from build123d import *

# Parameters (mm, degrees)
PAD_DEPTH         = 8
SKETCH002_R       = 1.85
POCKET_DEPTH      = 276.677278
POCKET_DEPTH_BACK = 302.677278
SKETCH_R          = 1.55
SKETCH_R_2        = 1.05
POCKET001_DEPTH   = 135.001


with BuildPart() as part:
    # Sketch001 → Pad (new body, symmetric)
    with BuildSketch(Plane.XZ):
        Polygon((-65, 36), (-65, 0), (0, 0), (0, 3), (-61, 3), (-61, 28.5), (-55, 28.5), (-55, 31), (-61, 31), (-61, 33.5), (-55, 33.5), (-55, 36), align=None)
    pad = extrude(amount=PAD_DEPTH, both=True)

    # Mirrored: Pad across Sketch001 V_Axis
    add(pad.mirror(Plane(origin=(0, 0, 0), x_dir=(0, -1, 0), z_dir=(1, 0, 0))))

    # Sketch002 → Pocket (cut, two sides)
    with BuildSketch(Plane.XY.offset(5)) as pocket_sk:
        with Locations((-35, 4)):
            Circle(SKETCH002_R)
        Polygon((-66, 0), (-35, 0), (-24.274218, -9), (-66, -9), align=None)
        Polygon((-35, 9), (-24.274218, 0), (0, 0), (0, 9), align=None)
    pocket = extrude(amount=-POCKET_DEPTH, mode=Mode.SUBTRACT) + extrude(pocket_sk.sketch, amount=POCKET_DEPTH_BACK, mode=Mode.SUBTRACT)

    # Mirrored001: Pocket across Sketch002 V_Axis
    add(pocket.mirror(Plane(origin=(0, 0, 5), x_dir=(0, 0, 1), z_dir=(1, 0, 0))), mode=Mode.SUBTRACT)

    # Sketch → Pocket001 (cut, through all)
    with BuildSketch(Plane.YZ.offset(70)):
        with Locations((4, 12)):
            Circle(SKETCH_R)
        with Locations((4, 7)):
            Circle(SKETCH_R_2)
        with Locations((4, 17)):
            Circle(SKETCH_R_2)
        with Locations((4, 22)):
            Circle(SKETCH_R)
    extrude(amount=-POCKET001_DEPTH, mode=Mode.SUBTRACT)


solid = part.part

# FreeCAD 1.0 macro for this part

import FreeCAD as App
import Part
import Sketcher

V = App.Vector
Q = App.Units.Quantity


def add_polygon(sketch, points):
    """Adds a closed chain of lines whose ends are joined by coincident constraints."""
    first, n = sketch.GeometryCount, len(points)
    for a, b in zip(points, points[1:] + points[:1]):
        sketch.addGeometry(Part.LineSegment(App.Vector(*a, 0), App.Vector(*b, 0)), False)
    for i in range(n):
        sketch.addConstraint(Sketcher.Constraint("Coincident", first + i, 2, first + (i + 1) % n, 1))

doc = App.newDocument("Part")
body = doc.addObject("PartDesign::Body", "Body")

sketch1 = body.newObject("Sketcher::SketchObject", "Sketch")
sketch1.AttachmentSupport = (doc.getObject("XZ_Plane"), [""])
sketch1.MapMode = "FlatFace"
add_polygon(sketch1, [(-65, 36), (-65, 0), (0, 0), (0, 3), (-61, 3), (-61, 28.5), (-55, 28.5), (-55, 31), (-61, 31), (-61, 33.5), (-55, 33.5), (-55, 36)])
sketch1.addConstraint([
    Sketcher.Constraint("Vertical", 0),
    Sketcher.Constraint("Horizontal", 1),
    Sketcher.Constraint("Vertical", 2),
    Sketcher.Constraint("Horizontal", 3),
    Sketcher.Constraint("Vertical", 4),
    Sketcher.Constraint("Horizontal", 5),
    Sketcher.Constraint("Vertical", 6),
    Sketcher.Constraint("Horizontal", 7),
    Sketcher.Constraint("Vertical", 8),
    Sketcher.Constraint("Horizontal", 9),
    Sketcher.Constraint("Vertical", 10),
    Sketcher.Constraint("Horizontal", 11),
    Sketcher.Constraint("Coincident", 1, 2, -1, 1),
    Sketcher.Constraint("Vertical", 4, 2, 7, 2),
    Sketcher.Constraint("Vertical", 6, 2, 9, 2),
    Sketcher.Constraint("Equal", 6, 8),
    Sketcher.Constraint("Equal", 8, 10),
    Sketcher.Constraint("DistanceX", 1, 1, 1, 2, 65.0),
    Sketcher.Constraint("DistanceX", 3, 2, 3, 1, 61.0),
    Sketcher.Constraint("DistanceX", 5, 1, 5, 2, 6.0),
    Sketcher.Constraint("DistanceY", 0, 2, 0, 1, 36.0),
    Sketcher.Constraint("DistanceY", 2, 1, 2, 2, 3.0),
    Sketcher.Constraint("DistanceY", 4, 1, 4, 2, 25.5),
])
pad1 = body.newObject("PartDesign::Pad", "Pad")
pad1.Profile = sketch1
pad1.Length = 16
pad1.Midplane = True
doc.recompute()

mirrored = body.newObject("PartDesign::Mirrored", "Mirrored")
mirrored.Originals = [pad1]
mirrored.MirrorPlane = (doc.getObject("YZ_Plane"), [""])
body.Tip = mirrored

sketch2 = body.newObject("Sketcher::SketchObject", "Sketch001")
sketch2.AttachmentSupport = (doc.getObject("XY_Plane"), [""])
sketch2.MapMode = "FlatFace"
sketch2.AttachmentOffset = App.Placement(V(0, 0, 5), App.Rotation())
sketch2.addGeometry(Part.Circle(V(-35, 4, 0), V(0, 0, 1), 1.9), False)
add_polygon(sketch2, [(-35, 0), (-66, 0), (-66, -9), (-24.3, -9)])
add_polygon(sketch2, [(-35, 9), (-24.3, 0), (0, 0), (0, 9)])
sketch2.addConstraint([
    Sketcher.Constraint("Horizontal", 1),
    Sketcher.Constraint("Vertical", 2),
    Sketcher.Constraint("Horizontal", 3),
    Sketcher.Constraint("Horizontal", 6),
    Sketcher.Constraint("Vertical", 7),
    Sketcher.Constraint("Horizontal", 8),
    Sketcher.Constraint("Coincident", 6, 2, -1, 1),
    Sketcher.Constraint("PointOnObject", 1, 2, -1),
    Sketcher.Constraint("Parallel", 4, 5),
    Sketcher.Constraint("Vertical", 0, 3, 4, 2),
    Sketcher.Constraint("Vertical", 3, 2, 5, 2),
    Sketcher.Constraint("Vertical", 4, 2, 8, 2),
    Sketcher.Constraint("Diameter", 0, 3.7),
    Sketcher.Constraint("DistanceX", 1, 2, 1, 1, 31.0),
    Sketcher.Constraint("DistanceX", 8, 2, 8, 1, 35.0),
    Sketcher.Constraint("DistanceY", 2, 2, 2, 1, 9.0),
    Sketcher.Constraint("Angle", 4, Q("139.999999 deg")),
    Sketcher.Constraint("DistanceY", -1, 1, 0, 3, 4.0),
])
pocket1 = body.newObject("PartDesign::Pocket", "Pocket")
pocket1.Profile = sketch2
pocket1.Type = "ThroughAll"
pocket1.Midplane = True
doc.recompute()

mirrored2 = body.newObject("PartDesign::Mirrored", "Mirrored001")
mirrored2.Originals = [pocket1]
mirrored2.MirrorPlane = (doc.getObject("YZ_Plane"), [""])
body.Tip = mirrored2

sketch3 = body.newObject("Sketcher::SketchObject", "Sketch002")
sketch3.AttachmentSupport = (doc.getObject("YZ_Plane"), [""])
sketch3.MapMode = "FlatFace"
sketch3.AttachmentOffset = App.Placement(V(0, 0, 70), App.Rotation())
sketch3.addGeometry([
    Part.Circle(V(4, 12, 0), V(0, 0, 1), 1.6),
    Part.Circle(V(4, 7, 0), V(0, 0, 1), 1.1),
    Part.Circle(V(4, 17, 0), V(0, 0, 1), 1.1),
    Part.Circle(V(4, 22, 0), V(0, 0, 1), 1.6),
], False)
sketch3.addConstraint([
    Sketcher.Constraint("Equal", 1, 2),
    Sketcher.Constraint("Equal", 0, 3),
    Sketcher.Constraint("Vertical", 0, 3, 1, 3),
    Sketcher.Constraint("Vertical", 1, 3, 2, 3),
    Sketcher.Constraint("Vertical", 2, 3, 3, 3),
    Sketcher.Constraint("Diameter", 0, 3.1),
    Sketcher.Constraint("Diameter", 1, 2.1),
    Sketcher.Constraint("DistanceX", -1, 1, 0, 3, 4.0),
    Sketcher.Constraint("DistanceY", -1, 1, 0, 3, 12.0),
    Sketcher.Constraint("DistanceY", -1, 1, 1, 3, 7.0),
    Sketcher.Constraint("DistanceY", -1, 1, 2, 3, 17.0),
    Sketcher.Constraint("DistanceY", -1, 1, 3, 3, 22.0),
])
pocket2 = body.newObject("PartDesign::Pocket", "Pocket001")
pocket2.Profile = sketch3
pocket2.Type = "ThroughAll"

doc.recompute()
